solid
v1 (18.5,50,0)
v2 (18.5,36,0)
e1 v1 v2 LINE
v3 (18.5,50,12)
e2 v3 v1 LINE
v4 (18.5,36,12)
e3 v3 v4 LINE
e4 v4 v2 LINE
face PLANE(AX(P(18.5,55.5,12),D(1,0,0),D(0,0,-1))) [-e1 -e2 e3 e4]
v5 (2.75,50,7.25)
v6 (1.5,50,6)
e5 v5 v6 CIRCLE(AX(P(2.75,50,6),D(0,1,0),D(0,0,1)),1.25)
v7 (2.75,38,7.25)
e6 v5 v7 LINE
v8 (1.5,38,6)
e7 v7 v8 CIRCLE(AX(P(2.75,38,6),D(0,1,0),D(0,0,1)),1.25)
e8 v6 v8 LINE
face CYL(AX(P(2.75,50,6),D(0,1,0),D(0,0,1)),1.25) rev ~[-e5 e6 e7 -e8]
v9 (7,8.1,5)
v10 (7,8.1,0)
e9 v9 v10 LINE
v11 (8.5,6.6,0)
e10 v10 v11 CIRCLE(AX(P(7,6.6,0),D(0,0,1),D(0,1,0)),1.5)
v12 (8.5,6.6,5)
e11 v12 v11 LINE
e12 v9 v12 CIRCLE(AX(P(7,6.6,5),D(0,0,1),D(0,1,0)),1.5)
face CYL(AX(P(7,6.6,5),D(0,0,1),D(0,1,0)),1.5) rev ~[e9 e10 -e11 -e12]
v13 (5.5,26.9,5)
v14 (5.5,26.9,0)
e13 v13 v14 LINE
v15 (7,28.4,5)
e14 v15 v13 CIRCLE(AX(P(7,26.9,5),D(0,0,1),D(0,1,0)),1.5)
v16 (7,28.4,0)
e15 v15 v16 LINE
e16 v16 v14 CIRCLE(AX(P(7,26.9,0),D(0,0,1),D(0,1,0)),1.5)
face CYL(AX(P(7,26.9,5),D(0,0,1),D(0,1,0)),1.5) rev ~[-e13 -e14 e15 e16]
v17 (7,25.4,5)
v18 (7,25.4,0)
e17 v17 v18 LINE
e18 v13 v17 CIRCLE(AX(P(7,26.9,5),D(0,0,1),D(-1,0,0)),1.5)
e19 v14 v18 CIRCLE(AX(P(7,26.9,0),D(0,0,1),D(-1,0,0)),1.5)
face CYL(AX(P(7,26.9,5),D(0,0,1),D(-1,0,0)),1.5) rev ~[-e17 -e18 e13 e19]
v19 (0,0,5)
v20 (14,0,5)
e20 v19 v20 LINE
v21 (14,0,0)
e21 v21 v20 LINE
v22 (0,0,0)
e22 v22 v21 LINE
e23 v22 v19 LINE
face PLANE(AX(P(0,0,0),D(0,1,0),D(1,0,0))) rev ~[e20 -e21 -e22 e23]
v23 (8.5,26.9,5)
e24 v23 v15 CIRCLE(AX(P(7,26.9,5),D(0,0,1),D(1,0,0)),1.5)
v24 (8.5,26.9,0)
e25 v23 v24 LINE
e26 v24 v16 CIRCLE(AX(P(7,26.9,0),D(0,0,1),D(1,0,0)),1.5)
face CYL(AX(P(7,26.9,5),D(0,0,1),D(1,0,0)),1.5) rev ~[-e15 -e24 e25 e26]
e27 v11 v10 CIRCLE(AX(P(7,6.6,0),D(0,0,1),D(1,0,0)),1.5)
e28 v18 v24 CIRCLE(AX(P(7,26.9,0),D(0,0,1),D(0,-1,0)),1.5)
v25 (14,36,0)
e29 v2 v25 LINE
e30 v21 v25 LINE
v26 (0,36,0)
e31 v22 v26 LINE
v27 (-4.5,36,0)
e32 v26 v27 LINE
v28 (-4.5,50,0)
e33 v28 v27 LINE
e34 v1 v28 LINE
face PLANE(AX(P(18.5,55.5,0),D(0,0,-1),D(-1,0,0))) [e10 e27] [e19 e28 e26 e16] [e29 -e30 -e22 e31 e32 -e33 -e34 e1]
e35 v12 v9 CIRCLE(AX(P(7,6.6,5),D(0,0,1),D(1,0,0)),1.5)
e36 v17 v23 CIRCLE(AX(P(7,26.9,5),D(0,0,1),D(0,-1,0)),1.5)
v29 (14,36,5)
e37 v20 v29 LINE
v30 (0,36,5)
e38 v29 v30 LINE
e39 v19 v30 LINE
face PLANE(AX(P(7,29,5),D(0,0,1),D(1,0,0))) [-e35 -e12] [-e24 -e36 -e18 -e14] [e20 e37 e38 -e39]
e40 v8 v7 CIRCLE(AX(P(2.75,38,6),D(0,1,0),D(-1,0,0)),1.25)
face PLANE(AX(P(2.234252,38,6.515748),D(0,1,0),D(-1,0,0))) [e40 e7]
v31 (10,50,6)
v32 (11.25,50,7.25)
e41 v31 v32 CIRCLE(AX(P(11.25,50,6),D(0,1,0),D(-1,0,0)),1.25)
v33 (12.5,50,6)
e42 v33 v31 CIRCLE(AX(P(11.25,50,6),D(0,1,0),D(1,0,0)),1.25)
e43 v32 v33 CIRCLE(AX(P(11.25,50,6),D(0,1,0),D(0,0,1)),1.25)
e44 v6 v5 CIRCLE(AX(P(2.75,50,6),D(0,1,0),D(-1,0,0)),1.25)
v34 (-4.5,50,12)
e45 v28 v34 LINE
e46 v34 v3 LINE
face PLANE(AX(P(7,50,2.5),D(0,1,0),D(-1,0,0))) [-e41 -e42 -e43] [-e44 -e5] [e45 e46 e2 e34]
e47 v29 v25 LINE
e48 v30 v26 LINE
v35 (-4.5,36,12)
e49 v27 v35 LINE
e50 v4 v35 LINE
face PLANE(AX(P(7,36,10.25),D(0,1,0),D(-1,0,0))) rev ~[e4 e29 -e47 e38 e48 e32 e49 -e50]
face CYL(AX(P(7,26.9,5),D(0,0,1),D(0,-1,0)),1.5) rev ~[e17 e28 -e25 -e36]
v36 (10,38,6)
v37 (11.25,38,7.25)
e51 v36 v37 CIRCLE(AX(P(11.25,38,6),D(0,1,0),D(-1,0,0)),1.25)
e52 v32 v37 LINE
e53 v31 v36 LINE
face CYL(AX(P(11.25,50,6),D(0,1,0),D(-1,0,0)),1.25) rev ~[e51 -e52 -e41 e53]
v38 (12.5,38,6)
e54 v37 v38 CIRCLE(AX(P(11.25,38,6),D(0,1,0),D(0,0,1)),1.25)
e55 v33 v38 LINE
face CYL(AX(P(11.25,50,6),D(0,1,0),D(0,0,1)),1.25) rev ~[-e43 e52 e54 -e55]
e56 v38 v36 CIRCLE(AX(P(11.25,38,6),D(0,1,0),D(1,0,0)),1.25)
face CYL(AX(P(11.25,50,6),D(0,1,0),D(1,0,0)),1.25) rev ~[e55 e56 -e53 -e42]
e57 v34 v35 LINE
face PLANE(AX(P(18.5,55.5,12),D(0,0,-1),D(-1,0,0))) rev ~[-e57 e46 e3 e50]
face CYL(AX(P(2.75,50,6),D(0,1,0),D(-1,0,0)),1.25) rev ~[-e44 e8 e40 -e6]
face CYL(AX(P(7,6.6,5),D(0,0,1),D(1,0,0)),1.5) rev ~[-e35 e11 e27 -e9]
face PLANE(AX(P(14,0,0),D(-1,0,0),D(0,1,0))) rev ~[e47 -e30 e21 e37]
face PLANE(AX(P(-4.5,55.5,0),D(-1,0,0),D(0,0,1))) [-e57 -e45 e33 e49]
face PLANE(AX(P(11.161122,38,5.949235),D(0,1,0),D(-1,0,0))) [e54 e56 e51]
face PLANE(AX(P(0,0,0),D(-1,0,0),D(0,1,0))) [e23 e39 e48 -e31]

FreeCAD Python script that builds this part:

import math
import FreeCAD as App
import Part
import Sketcher

V = App.Vector
Q = App.Units.Quantity

doc = App.newDocument("Part")
body = doc.addObject("PartDesign::Body", "Body")

sketch1 = doc.addObject("Sketcher::SketchObject", "Sketch")
body.addObject(sketch1)
sketch1.AttachmentSupport = (doc.XY_Plane, [""])
sketch1.MapMode = "FlatFace"
sketch1.addGeometry([
    Part.LineSegment(V(0, 58, 0), V(0, 0, 0)),
    Part.LineSegment(V(0, 0, 0), V(14, 0, 0)),
    Part.LineSegment(V(14, 0, 0), V(14, 58, 0)),
    Part.LineSegment(V(14, 58, 0), V(0, 58, 0)),
], False)
sketch1.addConstraint([
    Sketcher.Constraint("Coincident", 0, 2, 1, 1),
    Sketcher.Constraint("Coincident", 1, 2, 2, 1),
    Sketcher.Constraint("Coincident", 2, 2, 3, 1),
    Sketcher.Constraint("Coincident", 3, 2, 0, 1),
    Sketcher.Constraint("Vertical", 0),
    Sketcher.Constraint("Horizontal", 1),
    Sketcher.Constraint("Vertical", 2),
    Sketcher.Constraint("Horizontal", 3),
    Sketcher.Constraint("Coincident", 0, 2, -1, 1),
    Sketcher.Constraint("DistanceX", 1, 1, 1, 2, Q("14 mm")),
    Sketcher.Constraint("DistanceY", 0, 2, 0, 1, Q("58 mm")),
])
pad1 = doc.addObject("PartDesign::Pad", "Pad")
body.addObject(pad1)
pad1.Profile = sketch1
pad1.Length = 5

sketch2 = doc.addObject("Sketcher::SketchObject", "Sketch001")
body.addObject(sketch2)
sketch2.AttachmentSupport = (doc.XY_Plane, [""])
sketch2.MapMode = "FlatFace"
sketch2.AttachmentOffset = App.Placement(V(0, 0, 5), App.Rotation())
sketch2.addGeometry([
    Part.ArcOfCircle(Part.Circle(V(7, 26.9, 0), V(0, 0, 1), 1.5), math.radians(0), math.radians(90)),
    Part.ArcOfCircle(Part.Circle(V(7, 26.9, 0), V(0, 0, 1), 1.5), math.radians(90), math.radians(180)),
    Part.ArcOfCircle(Part.Circle(V(7, 26.9, 0), V(0, 0, 1), 1.5), math.radians(180), math.radians(270)),
    Part.ArcOfCircle(Part.Circle(V(7, 26.9, 0), V(0, 0, 1), 1.5), math.radians(-90), math.radians(0)),
    Part.ArcOfCircle(Part.Circle(V(7, 6.6, 0), V(0, 0, 1), 1.5), math.radians(0), math.radians(90)),
    Part.ArcOfCircle(Part.Circle(V(7, 6.6, 0), V(0, 0, 1), 1.5), math.radians(90), math.radians(360)),
], False)
sketch2.addConstraint([
    Sketcher.Constraint("Tangent", 0, 2, 1, 1),
    Sketcher.Constraint("Tangent", 1, 2, 2, 1),
    Sketcher.Constraint("Tangent", 2, 2, 3, 1),
    Sketcher.Constraint("Tangent", 3, 2, 0, 1),
    Sketcher.Constraint("Tangent", 4, 1, 5, 2),
    Sketcher.Constraint("Coincident", 5, 1, 4, 2),
    Sketcher.Constraint("Equal", 0, 1),
    Sketcher.Constraint("Equal", 3, 4),
    Sketcher.Constraint("Horizontal", 3, 3, 1, 2),
    Sketcher.Constraint("Horizontal", 1, 2, 3, 2),
    Sketcher.Constraint("Horizontal", 5, 3, 4, 1),
    Sketcher.Constraint("Vertical", 3, 3, 4, 3),
    Sketcher.Constraint("Vertical", 5, 3, 0, 2),
    Sketcher.Constraint("Vertical", 0, 2, 2, 2),
    Sketcher.Constraint("Vertical", 2, 2, 5, 1),
    Sketcher.Constraint("Radius", 0, Q("1.5 mm")),
    Sketcher.Constraint("DistanceX", -1, 1, 0, 3, Q("7 mm")),
    Sketcher.Constraint("DistanceY", -1, 1, 0, 3, Q("26.9 mm")),
    Sketcher.Constraint("DistanceY", -1, 1, 4, 3, Q("6.6 mm")),
])
pocket1 = doc.addObject("PartDesign::Pocket", "Pocket")
body.addObject(pocket1)
pocket1.Profile = sketch2
pocket1.Length = 25

sketch3 = doc.addObject("Sketcher::SketchObject", "Sketch002")
body.addObject(sketch3)
sketch3.AttachmentSupport = (doc.XZ_Plane, [""])
sketch3.MapMode = "FlatFace"
sketch3.AttachmentOffset = App.Placement(V(0, 0, -55.5), App.Rotation())
sketch3.addGeometry([
    Part.LineSegment(V(18, 12, 0), V(18, 0, 0)),
    Part.LineSegment(V(18, 0, 0), V(-4, 0, 0)),
    Part.LineSegment(V(-4, 0, 0), V(-4, 12, 0)),
    Part.LineSegment(V(-4, 12, 0), V(18, 12, 0)),
], False)
sketch3.addConstraint([
    Sketcher.Constraint("Coincident", 0, 2, 1, 1),
    Sketcher.Constraint("Coincident", 1, 2, 2, 1),
    Sketcher.Constraint("Coincident", 2, 2, 3, 1),
    Sketcher.Constraint("Coincident", 3, 2, 0, 1),
    Sketcher.Constraint("Vertical", 0),
    Sketcher.Constraint("Horizontal", 1),
    Sketcher.Constraint("Vertical", 2),
    Sketcher.Constraint("Horizontal", 3),
    Sketcher.Constraint("PointOnObject", 0, 2, -1),
    Sketcher.Constraint("DistanceX", 1, 2, 1, 1, Q("23 mm")),
    Sketcher.Constraint("DistanceY", 0, 2, 0, 1, Q("12 mm")),
    Sketcher.Constraint("DistanceX", -1, 1, 0, 2, Q("18.5 mm")),
])
pad2 = doc.addObject("PartDesign::Pad", "Pad001")
body.addObject(pad2)
pad2.Profile = sketch3
pad2.Length = 19.5

sketch4 = doc.addObject("Sketcher::SketchObject", "Sketch003")
body.addObject(sketch4)
sketch4.AttachmentSupport = (doc.XZ_Plane, [""])
sketch4.MapMode = "FlatFace"
sketch4.AttachmentOffset = App.Placement(V(0, 0, -58), App.Rotation())
sketch4.addGeometry([
    Part.LineSegment(V(18, 0, 0), V(-4, 0, 0)),
    Part.LineSegment(V(-4, 0, 0), V(-4, 12, 0)),
    Part.LineSegment(V(-4, 12, 0), V(18, 12, 0)),
    Part.LineSegment(V(18, 12, 0), V(18, 0, 0)),
], False)
sketch4.addConstraint([
    Sketcher.Constraint("Coincident", 0, 2, 1, 1),
    Sketcher.Constraint("Coincident", 1, 2, 2, 1),
    Sketcher.Constraint("Coincident", 2, 2, 3, 1),
    Sketcher.Constraint("Coincident", 3, 2, 0, 1),
    Sketcher.Constraint("Horizontal", 0),
    Sketcher.Constraint("Vertical", 1),
    Sketcher.Constraint("Horizontal", 2),
    Sketcher.Constraint("Vertical", 3),
    Sketcher.Constraint("PointOnObject", 0, 2, -1),
    Sketcher.Constraint("DistanceX", 0, 2, 0, 1, Q("23 mm")),
    Sketcher.Constraint("DistanceY", 1, 1, 1, 2, Q("12 mm")),
    Sketcher.Constraint("DistanceX", 0, 2, -1, 1, Q("4.5 mm")),
])
pocket2 = doc.addObject("PartDesign::Pocket", "Pocket001")
body.addObject(pocket2)
pocket2.Profile = sketch4
pocket2.Length = 8
pocket2.Reversed = True

sketch5 = doc.addObject("Sketcher::SketchObject", "Sketch004")
body.addObject(sketch5)
sketch5.AttachmentSupport = (doc.XZ_Plane, [""])
sketch5.MapMode = "FlatFace"
sketch5.AttachmentOffset = App.Placement(V(0, 0, -50), App.Rotation())
sketch5.addGeometry([
    Part.ArcOfCircle(Part.Circle(V(11.2, 6, 0), V(0, 0, 1), 1.2), math.radians(90), math.radians(180)),
    Part.ArcOfCircle(Part.Circle(V(11.2, 6, 0), V(0, 0, 1), 1.2), math.radians(0), math.radians(90)),
    Part.ArcOfCircle(Part.Circle(V(11.2, 6, 0), V(0, 0, 1), 1.2), math.radians(180), math.radians(360)),
    Part.ArcOfCircle(Part.Circle(V(2.8, 6, 0), V(0, 0, 1), 1.2), math.radians(90), math.radians(180)),
    Part.ArcOfCircle(Part.Circle(V(2.8, 6, 0), V(0, 0, 1), 1.2), math.radians(180), math.radians(450)),
], False)
sketch5.addConstraint([
    Sketcher.Constraint("Tangent", 0, 1, 1, 2),
    Sketcher.Constraint("Tangent", 1, 1, 2, 2),
    Sketcher.Constraint("Tangent", 2, 1, 0, 2),
    Sketcher.Constraint("Tangent", 3, 1, 4, 2),
    Sketcher.Constraint("Coincident", 4, 1, 3, 2),
    Sketcher.Constraint("Equal", 2, 3),
    Sketcher.Constraint("Horizontal", 2, 3, 3, 3),
    Sketcher.Constraint("Horizontal", 4, 3, 1, 1),
    Sketcher.Constraint("Horizontal", 1, 1, 2, 1),
    Sketcher.Constraint("Horizontal", 2, 1, 4, 1),
    Sketcher.Constraint("Vertical", 2, 3, 0, 1),
    Sketcher.Constraint("Vertical", 4, 3, 3, 1),
    Sketcher.Constraint("Radius", 0, Q("1.25 mm")),
    Sketcher.Constraint("DistanceY", -1, 1, 0, 3, Q("6 mm")),
    Sketcher.Constraint("DistanceX", -1, 1, 2, 1, Q("10 mm")),
    Sketcher.Constraint("DistanceX", -1, 1, 4, 1, Q("1.5 mm")),
])
pocket3 = doc.addObject("PartDesign::Pocket", "Pocket002")
body.addObject(pocket3)
pocket3.Profile = sketch5
pocket3.Length = 12
pocket3.Reversed = True

doc.recompute()
